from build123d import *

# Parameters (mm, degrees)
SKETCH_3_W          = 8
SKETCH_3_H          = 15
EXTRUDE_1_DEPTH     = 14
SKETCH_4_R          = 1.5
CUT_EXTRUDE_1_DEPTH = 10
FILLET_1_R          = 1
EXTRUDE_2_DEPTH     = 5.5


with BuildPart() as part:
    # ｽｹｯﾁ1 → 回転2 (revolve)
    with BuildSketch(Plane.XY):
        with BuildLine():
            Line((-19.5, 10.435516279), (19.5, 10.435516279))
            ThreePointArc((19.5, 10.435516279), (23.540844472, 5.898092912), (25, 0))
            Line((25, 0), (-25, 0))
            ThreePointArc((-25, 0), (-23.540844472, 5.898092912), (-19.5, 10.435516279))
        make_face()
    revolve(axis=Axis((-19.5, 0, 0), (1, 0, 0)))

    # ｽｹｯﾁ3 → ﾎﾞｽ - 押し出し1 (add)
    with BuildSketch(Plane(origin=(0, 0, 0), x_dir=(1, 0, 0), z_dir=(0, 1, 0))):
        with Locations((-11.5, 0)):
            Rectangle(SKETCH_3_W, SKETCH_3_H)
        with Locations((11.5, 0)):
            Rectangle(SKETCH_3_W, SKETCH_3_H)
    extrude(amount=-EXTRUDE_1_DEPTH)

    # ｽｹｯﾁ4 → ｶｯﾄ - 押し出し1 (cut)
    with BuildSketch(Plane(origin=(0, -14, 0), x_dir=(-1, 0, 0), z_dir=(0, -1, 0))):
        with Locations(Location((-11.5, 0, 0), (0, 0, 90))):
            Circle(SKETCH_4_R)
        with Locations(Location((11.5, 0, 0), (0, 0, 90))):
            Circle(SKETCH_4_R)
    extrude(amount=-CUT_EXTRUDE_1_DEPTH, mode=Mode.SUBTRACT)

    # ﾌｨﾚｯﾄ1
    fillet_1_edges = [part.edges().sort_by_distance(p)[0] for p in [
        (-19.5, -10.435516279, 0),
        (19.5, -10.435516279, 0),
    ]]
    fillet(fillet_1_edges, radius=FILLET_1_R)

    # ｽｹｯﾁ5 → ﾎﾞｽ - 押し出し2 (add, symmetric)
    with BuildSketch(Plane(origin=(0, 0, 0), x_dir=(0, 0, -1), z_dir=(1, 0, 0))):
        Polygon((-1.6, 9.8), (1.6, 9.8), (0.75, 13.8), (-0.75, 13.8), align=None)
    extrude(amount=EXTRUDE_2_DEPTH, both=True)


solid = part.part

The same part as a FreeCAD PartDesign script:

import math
import FreeCAD as App
import Part
import Sketcher
from FreeCAD import Vector


def edges_at(feature, points):
    """Names of the edges that pass closest to the given points."""
    edges = feature.Shape.Edges
    near = lambda p: min(range(len(edges)), key=lambda i: edges[i].distToShape(Part.Vertex(*p))[0])
    return sorted({f"Edge{near(p) + 1}" for p in points})


def add_polygon(sketch, points):
    """Adds a closed chain of lines whose ends are joined by coincident constraints."""
    first, n = sketch.GeometryCount, len(points)
    for a, b in zip(points, points[1:] + points[:1]):
        sketch.addGeometry(Part.LineSegment(App.Vector(*a, 0), App.Vector(*b, 0)), False)
    for i in range(n):
        sketch.addConstraint(Sketcher.Constraint("Coincident", first + i, 2, first + (i + 1) % n, 1))

doc = App.newDocument("Part")
body = doc.addObject("PartDesign::Body", "Body")

sketch1 = body.newObject("Sketcher::SketchObject", "Sketch")
sketch1.AttachmentSupport = (doc.getObject("XY_Plane"), [""])
sketch1.MapMode = "FlatFace"
sketch1.addGeometry([
    Part.LineSegment(Vector(20, 10, 0), Vector(-20, 10, 0)),
    Part.ArcOfCircle(Part.Circle(Vector(-12, 0, 0), Vector(0, 0, 1), 13), math.radians(124), math.radians(180)),
    Part.LineSegment(Vector(-25, 0, 0), Vector(25, 0, 0)),
    Part.ArcOfCircle(Part.Circle(Vector(12, 0, 0), Vector(0, 0, 1), 13), math.radians(0), math.radians(56)),
], False)
sketch1.addConstraint([
    Sketcher.Constraint("Coincident", 0, 2, 1, 1),
    Sketcher.Constraint("Coincident", 1, 2, 2, 1),
    Sketcher.Constraint("Coincident", 2, 2, 3, 1),
    Sketcher.Constraint("Coincident", 3, 2, 0, 1),
    Sketcher.Constraint("Horizontal", 0),
    Sketcher.Constraint("Horizontal", 2),
    Sketcher.Constraint("Equal", 1, 3),
    Sketcher.Constraint("Symmetric", 1, 3, 3, 3, -1, 1),
    Sketcher.Constraint("PointOnObject", 1, 3, -1),
    Sketcher.Constraint("PointOnObject", 1, 2, -1),
    Sketcher.Constraint("DistanceX", 0, 2, 0, 1, 39.0),
    Sketcher.Constraint("DistanceX", 2, 1, 2, 2, 50.0),
    Sketcher.Constraint("Radius", 1, 12.65),
])
revolution = body.newObject("PartDesign::Revolution", "Revolution")
revolution.Profile = sketch1
revolution.ReferenceAxis = (sketch1, ["H_Axis"])
revolution.Angle = 360

sketch2 = body.newObject("Sketcher::SketchObject", "Sketch001")
sketch2.AttachmentSupport = (doc.getObject("XZ_Plane"), [""])
sketch2.MapMode = "FlatFace"
add_polygon(sketch2, [(-16, -8), (-16, 8), (-8, 8), (-8, -8)])
add_polygon(sketch2, [(8, -8), (8, 8), (16, 8), (16, -8)])
sketch2.addConstraint([
    Sketcher.Constraint("Vertical", 0),
    Sketcher.Constraint("Horizontal", 1),
    Sketcher.Constraint("Vertical", 2),
    Sketcher.Constraint("Horizontal", 3),
    Sketcher.Constraint("Vertical", 4),
    Sketcher.Constraint("Horizontal", 5),
    Sketcher.Constraint("Vertical", 6),
    Sketcher.Constraint("Horizontal", 7),
    Sketcher.Constraint("Symmetric", 2, 2, 4, 2, -1, 1),
    Sketcher.Constraint("Symmetric", 0, 2, 6, 2, -1, 1),
    Sketcher.Constraint("Horizontal", 1, 2, 4, 2),
    Sketcher.Constraint("DistanceX", 1, 1, 1, 2, 8.0),
    Sketcher.Constraint("DistanceY", 0, 1, 0, 2, 15.0),
    Sketcher.Constraint("DistanceX", 1, 2, 4, 2, 15.0),
])
pad1 = body.newObject("PartDesign::Pad", "Pad")
pad1.Profile = sketch2
pad1.Length = 14

sketch3 = body.newObject("Sketcher::SketchObject", "Sketch002")
sketch3.AttachmentSupport = (doc.getObject("XZ_Plane"), [""])
sketch3.MapMode = "FlatFace"
sketch3.AttachmentOffset = App.Placement(Vector(0, 0, 14), App.Rotation())
sketch3.addGeometry([
    Part.Circle(Vector(11.5, 0, 0), Vector(0, 0, 1), 1.5),
    Part.Circle(Vector(-11.5, 0, 0), Vector(0, 0, 1), 1.5),
], False)
sketch3.addConstraint([
    Sketcher.Constraint("Equal", 0, 1),
    Sketcher.Constraint("Symmetric", 0, 3, 1, 3, -1, 1),
    Sketcher.Constraint("PointOnObject", 0, 3, -1),
    Sketcher.Constraint("Diameter", 0, 3.0),
    Sketcher.Constraint("DistanceX", 1, 3, 0, 3, 23.0),
])
pocket1 = body.newObject("PartDesign::Pocket", "Pocket")
pocket1.Profile = sketch3
pocket1.Length = 10
doc.recompute()

fillet = body.newObject("PartDesign::Fillet", "Fillet")
fillet.Base = (pocket1, edges_at(pocket1, [(-19.5, -10.436, 0), (19.5, -10.436, 0)]))
fillet.Radius = 1

sketch4 = body.newObject("Sketcher::SketchObject", "Sketch003")
sketch4.AttachmentSupport = (doc.getObject("YZ_Plane"), [""])
sketch4.MapMode = "FlatFace"
add_polygon(sketch4, [(9.8, 1.6), (9.8, -1.6), (13.8, -0.8), (13.8, 0.8)])
sketch4.addConstraint([
    Sketcher.Constraint("Vertical", 0),
    Sketcher.Constraint("Vertical", 2),
    Sketcher.Constraint("Equal", 1, 3),
    Sketcher.Constraint("DistanceY", 0, 2, 0, 1, 3.2),
    Sketcher.Constraint("DistanceY", 2, 1, 2, 2, 1.5),
    Sketcher.Constraint("DistanceX", 0, 2, 1, 2, 4.0),
    Sketcher.Constraint("DistanceX", -1, 1, 0, 2, 9.8),
    Sketcher.Constraint("DistanceY", 0, 2, -1, 1, 1.6),
])
pad2 = body.newObject("PartDesign::Pad", "Pad001")
pad2.Profile = sketch4
pad2.Length = 11
pad2.Midplane = True

doc.recompute()
